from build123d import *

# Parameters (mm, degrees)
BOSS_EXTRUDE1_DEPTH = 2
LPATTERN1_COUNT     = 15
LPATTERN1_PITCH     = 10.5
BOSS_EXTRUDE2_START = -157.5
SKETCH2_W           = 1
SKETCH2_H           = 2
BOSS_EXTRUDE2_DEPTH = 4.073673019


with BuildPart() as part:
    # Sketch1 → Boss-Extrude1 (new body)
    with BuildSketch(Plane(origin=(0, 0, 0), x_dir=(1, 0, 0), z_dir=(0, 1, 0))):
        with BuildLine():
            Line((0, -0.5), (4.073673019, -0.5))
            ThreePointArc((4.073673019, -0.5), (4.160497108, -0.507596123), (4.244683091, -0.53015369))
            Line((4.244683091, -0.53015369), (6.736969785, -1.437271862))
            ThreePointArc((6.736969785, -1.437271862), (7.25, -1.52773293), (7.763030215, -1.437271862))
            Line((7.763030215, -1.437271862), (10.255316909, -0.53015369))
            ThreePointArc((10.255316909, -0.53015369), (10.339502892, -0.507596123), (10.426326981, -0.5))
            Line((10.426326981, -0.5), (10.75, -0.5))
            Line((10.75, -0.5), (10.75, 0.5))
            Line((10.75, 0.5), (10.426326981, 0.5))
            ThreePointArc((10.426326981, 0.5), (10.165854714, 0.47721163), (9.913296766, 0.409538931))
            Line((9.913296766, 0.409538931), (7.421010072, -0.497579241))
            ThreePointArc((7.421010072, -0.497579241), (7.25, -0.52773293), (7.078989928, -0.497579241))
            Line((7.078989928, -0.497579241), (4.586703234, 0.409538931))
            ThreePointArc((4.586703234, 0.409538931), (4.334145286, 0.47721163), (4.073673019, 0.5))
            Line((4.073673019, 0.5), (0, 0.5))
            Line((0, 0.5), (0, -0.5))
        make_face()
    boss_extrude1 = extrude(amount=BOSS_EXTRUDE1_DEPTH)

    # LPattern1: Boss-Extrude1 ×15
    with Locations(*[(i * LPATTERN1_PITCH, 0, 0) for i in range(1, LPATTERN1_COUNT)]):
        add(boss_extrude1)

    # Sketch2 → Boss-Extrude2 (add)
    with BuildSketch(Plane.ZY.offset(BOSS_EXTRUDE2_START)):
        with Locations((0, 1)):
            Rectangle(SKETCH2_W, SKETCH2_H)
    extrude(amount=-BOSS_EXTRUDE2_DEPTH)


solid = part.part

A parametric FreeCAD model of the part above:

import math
import FreeCAD as App
import Part
import Sketcher
from FreeCAD import Vector
Q = App.Units.Quantity


def add_polygon(sketch, points):
    """Adds a closed chain of lines whose ends are joined by coincident constraints."""
    first, n = sketch.GeometryCount, len(points)
    for a, b in zip(points, points[1:] + points[:1]):
        sketch.addGeometry(Part.LineSegment(App.Vector(*a, 0), App.Vector(*b, 0)), False)
    for i in range(n):
        sketch.addConstraint(Sketcher.Constraint("Coincident", first + i, 2, first + (i + 1) % n, 1))

doc = App.newDocument("Part")
params = doc.addObject("Spreadsheet::Sheet", "Params")
for row, (alias, value) in enumerate([
    ("sketch1_radius", "0.5 mm"),
    ("sketch1_radius2", "1.5 mm"),
    ("pad1_length", "2 mm"),
    ("linearpattern_pitch", "10.5 mm"),
    ("sketch2_width", "2 mm"),
    ("sketch2_height", "1 mm"),
    ("pad2_length", "4.073673 mm"),
], start=1):
    params.set(f"A{row}", alias)
    params.set(f"B{row}", "=" + value)
    params.setAlias(f"B{row}", alias)

body = doc.addObject("PartDesign::Body", "Body")

# Sketch on XZ plane
sketch1 = body.newObject("Sketcher::SketchObject", "Sketch")
sketch1.AttachmentSupport = (doc.getObject("XZ_Plane"), [""])
sketch1.MapMode = "FlatFace"
sketch1.addGeometry(Part.LineSegment(Vector(0, 0.5, 0), Vector(4.073673, 0.5, 0)), False)
sketch1.addGeometry(Part.ArcOfCircle(Part.Circle(Vector(4.073673, 1, 0), Vector(0, 0, 1), 0.5), math.radians(-90.000001), math.radians(-69.999999)), False)
sketch1.addGeometry(Part.LineSegment(Vector(4.244683, 0.530154, 0), Vector(6.73697, 1.437272, 0)), False)
sketch1.addGeometry(Part.ArcOfCircle(Part.Circle(Vector(7.25, 0.027733, 0), Vector(0, 0, 1), 1.5), math.radians(70), math.radians(110)), False)
sketch1.addGeometry(Part.LineSegment(Vector(7.76303, 1.437272, 0), Vector(10.255317, 0.530154, 0)), False)
sketch1.addGeometry(Part.ArcOfCircle(Part.Circle(Vector(10.426327, 1, 0), Vector(0, 0, 1), 0.5), math.radians(-110.000001), math.radians(-89.999999)), False)
sketch1.addGeometry(Part.LineSegment(Vector(10.426327, 0.5, 0), Vector(10.75, 0.5, 0)), False)
sketch1.addGeometry(Part.LineSegment(Vector(10.75, 0.5, 0), Vector(10.75, -0.5, 0)), False)
sketch1.addGeometry(Part.LineSegment(Vector(10.75, -0.5, 0), Vector(10.426327, -0.5, 0)), False)
sketch1.addGeometry(Part.ArcOfCircle(Part.Circle(Vector(10.426327, 1, 0), Vector(0, 0, 1), 1.5), math.radians(-110), math.radians(-90)), False)
sketch1.addGeometry(Part.LineSegment(Vector(9.913297, -0.409539, 0), Vector(7.42101, 0.497579, 0)), False)
sketch1.addGeometry(Part.ArcOfCircle(Part.Circle(Vector(7.25, 0.027733, 0), Vector(0, 0, 1), 0.5), math.radians(70), math.radians(110)), False)
sketch1.addGeometry(Part.LineSegment(Vector(7.07899, 0.497579, 0), Vector(4.586703, -0.409539, 0)), False)
sketch1.addGeometry(Part.ArcOfCircle(Part.Circle(Vector(4.073673, 1, 0), Vector(0, 0, 1), 1.5), math.radians(-90), math.radians(-70)), False)
sketch1.addGeometry(Part.LineSegment(Vector(4.073673, -0.5, 0), Vector(0, -0.5, 0)), False)
sketch1.addGeometry(Part.LineSegment(Vector(0, -0.5, 0), Vector(0, 0.5, 0)), False)
sketch1.addConstraint(Sketcher.Constraint("Tangent", 0, 2, 1, 1))
sketch1.addConstraint(Sketcher.Constraint("Tangent", 1, 2, 2, 1))
sketch1.addConstraint(Sketcher.Constraint("Tangent", 2, 2, 3, 2))
sketch1.addConstraint(Sketcher.Constraint("Tangent", 3, 1, 4, 1))
sketch1.addConstraint(Sketcher.Constraint("Tangent", 4, 2, 5, 1))
sketch1.addConstraint(Sketcher.Constraint("Tangent", 5, 2, 6, 1))
sketch1.addConstraint(Sketcher.Constraint("Coincident", 6, 2, 7, 1))
sketch1.addConstraint(Sketcher.Constraint("Coincident", 7, 2, 8, 1))
sketch1.addConstraint(Sketcher.Constraint("Tangent", 8, 2, 9, 2))
sketch1.addConstraint(Sketcher.Constraint("Tangent", 9, 1, 10, 1))
sketch1.addConstraint(Sketcher.Constraint("Tangent", 10, 2, 11, 1))
sketch1.addConstraint(Sketcher.Constraint("Tangent", 11, 2, 12, 1))
sketch1.addConstraint(Sketcher.Constraint("Tangent", 12, 2, 13, 2))
sketch1.addConstraint(Sketcher.Constraint("Tangent", 13, 1, 14, 1))
sketch1.addConstraint(Sketcher.Constraint("Coincident", 14, 2, 15, 1))
sketch1.addConstraint(Sketcher.Constraint("Coincident", 15, 2, 0, 1))
sketch1.addConstraint(Sketcher.Constraint("Horizontal", 0))
sketch1.addConstraint(Sketcher.Constraint("Horizontal", 6))
sketch1.addConstraint(Sketcher.Constraint("Vertical", 7))
sketch1.addConstraint(Sketcher.Constraint("Horizontal", 8))
sketch1.addConstraint(Sketcher.Constraint("Horizontal", 14))
sketch1.addConstraint(Sketcher.Constraint("Vertical", 15))
sketch1.addConstraint(Sketcher.Constraint("Coincident", 9, 3, 5, 3))
sketch1.addConstraint(Sketcher.Constraint("Coincident", 11, 3, 3, 3))
sketch1.addConstraint(Sketcher.Constraint("Coincident", 13, 3, 1, 3))
sketch1.addConstraint(Sketcher.Constraint("Equal", 1, 5))
sketch1.addConstraint(Sketcher.Constraint("Equal", 3, 9))
sketch1.addConstraint(Sketcher.Constraint("Equal", 5, 11))
sketch1.addConstraint(Sketcher.Constraint("Equal", 9, 13))
sketch1.addConstraint(Sketcher.Constraint("Symmetric", 14, 2, 15, 2, -1, 1))
sketch1.addConstraint(Sketcher.Constraint("Horizontal", 1, 3, 5, 3))
sketch1.addConstraint(Sketcher.Constraint("Horizontal", 2, 2, 3, 1))
sketch1.addConstraint(Sketcher.Constraint("Radius", 1, 0.5))
sketch1.addConstraint(Sketcher.Constraint("Radius", 3, 1.5))
sketch1.addConstraint(Sketcher.Constraint("Angle", 2, Q("20 deg")))
sketch1.addConstraint(Sketcher.Constraint("DistanceX", -1, 1, 3, 3, 7.25))
sketch1.addConstraint(Sketcher.Constraint("DistanceX", -1, 1, 6, 2, 10.75))
sketch1.addConstraint(Sketcher.Constraint("DistanceX", 0, 1, 0, 2, 4.073673))
sketch1.setExpression("Constraints[32]", "Params.sketch1_radius")
sketch1.setExpression("Constraints[33]", "Params.sketch1_radius2")
pad1 = body.newObject("PartDesign::Pad", "Pad")
pad1.Profile = sketch1
pad1.setExpression("Length", "Params.pad1_length")
pad1.Reversed = True
doc.recompute()

linearpattern = body.newObject("PartDesign::LinearPattern", "LinearPattern")
linearpattern.Originals = [pad1]
linearpattern.Direction = (doc.getObject("X_Axis"), [""])
linearpattern.Mode = "offset"
linearpattern.setExpression("Offset", "Params.linearpattern_pitch")
linearpattern.Occurrences = 15
body.Tip = linearpattern

# Sketch on YZ plane
sketch2 = body.newObject("Sketcher::SketchObject", "Sketch001")
sketch2.AttachmentSupport = (doc.getObject("YZ_Plane"), [""])
sketch2.MapMode = "FlatFace"
sketch2.AttachmentOffset = App.Placement(Vector(0, 0, 157.5), App.Rotation())
add_polygon(sketch2, [(2, -0.5), (0, -0.5), (0, 0.5), (2, 0.5)])  # lines 0-3
sketch2.addConstraint(Sketcher.Constraint("Horizontal", 0))
sketch2.addConstraint(Sketcher.Constraint("Vertical", 1))
sketch2.addConstraint(Sketcher.Constraint("Horizontal", 2))
sketch2.addConstraint(Sketcher.Constraint("Vertical", 3))
sketch2.addConstraint(Sketcher.Constraint("Symmetric", 0, 2, 1, 2, -1, 1))
sketch2.addConstraint(Sketcher.Constraint("DistanceX", 0, 2, 0, 1, 2.0))
sketch2.addConstraint(Sketcher.Constraint("DistanceY", 1, 1, 1, 2, 1.0))
sketch2.setExpression("Constraints[9]", "Params.sketch2_width")
sketch2.setExpression("Constraints[10]", "Params.sketch2_height")
pad2 = body.newObject("PartDesign::Pad", "Pad001")
pad2.Profile = sketch2
pad2.setExpression("Length", "Params.pad2_length")

doc.recompute()
